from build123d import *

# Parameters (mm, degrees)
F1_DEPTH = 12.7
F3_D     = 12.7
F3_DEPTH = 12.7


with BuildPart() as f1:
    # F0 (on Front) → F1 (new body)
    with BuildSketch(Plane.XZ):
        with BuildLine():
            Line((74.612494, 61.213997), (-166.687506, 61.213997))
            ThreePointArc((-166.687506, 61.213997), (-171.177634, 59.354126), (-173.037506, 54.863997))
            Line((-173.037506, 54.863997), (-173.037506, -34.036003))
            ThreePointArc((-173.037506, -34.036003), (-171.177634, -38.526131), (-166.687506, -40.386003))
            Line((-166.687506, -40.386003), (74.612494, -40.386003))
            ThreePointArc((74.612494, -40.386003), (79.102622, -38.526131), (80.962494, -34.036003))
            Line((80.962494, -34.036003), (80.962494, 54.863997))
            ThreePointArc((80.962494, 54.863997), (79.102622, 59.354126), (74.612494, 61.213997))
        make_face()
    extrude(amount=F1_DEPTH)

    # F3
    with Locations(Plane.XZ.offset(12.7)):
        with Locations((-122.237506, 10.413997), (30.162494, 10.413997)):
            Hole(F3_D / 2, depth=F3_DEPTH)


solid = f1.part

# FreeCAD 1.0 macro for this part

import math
import FreeCAD as App
import Part
import Sketcher
Q = App.Units.Quantity

doc = App.newDocument("Part")
body = doc.addObject("PartDesign::Body", "Body")

sketch1 = body.newObject("Sketcher::SketchObject", "Sketch")
sketch1.AttachmentSupport = (doc.getObject("XZ_Plane"), [""])
sketch1.MapMode = "FlatFace"
sketch1.addGeometry([
    Part.LineSegment(App.Vector(75, 61, 0), App.Vector(-167, 61, 0)),
    Part.ArcOfCircle(Part.Circle(App.Vector(-167, 55, 0), App.Vector(0, 0, 1), 6), math.radians(90), math.radians(180)),
    Part.LineSegment(App.Vector(-173, 55, 0), App.Vector(-173, -34, 0)),
    Part.ArcOfCircle(Part.Circle(App.Vector(-167, -34, 0), App.Vector(0, 0, 1), 6), math.radians(-180), math.radians(-90)),
    Part.LineSegment(App.Vector(-167, -40, 0), App.Vector(75, -40, 0)),
    Part.ArcOfCircle(Part.Circle(App.Vector(75, -34, 0), App.Vector(0, 0, 1), 6), math.radians(-90), math.radians(0)),
    Part.LineSegment(App.Vector(81, -34, 0), App.Vector(81, 55, 0)),
    Part.ArcOfCircle(Part.Circle(App.Vector(75, 55, 0), App.Vector(0, 0, 1), 6), math.radians(0), math.radians(90)),
], False)
sketch1.addConstraint([
    Sketcher.Constraint("Tangent", 0, 2, 1, 1),
    Sketcher.Constraint("Tangent", 1, 2, 2, 1),
    Sketcher.Constraint("Tangent", 2, 2, 3, 1),
    Sketcher.Constraint("Tangent", 3, 2, 4, 1),
    Sketcher.Constraint("Tangent", 4, 2, 5, 1),
    Sketcher.Constraint("Tangent", 5, 2, 6, 1),
    Sketcher.Constraint("Tangent", 6, 2, 7, 1),
    Sketcher.Constraint("Tangent", 7, 2, 0, 1),
    Sketcher.Constraint("Horizontal", 0),
    Sketcher.Constraint("Vertical", 2),
    Sketcher.Constraint("Horizontal", 4),
    Sketcher.Constraint("Vertical", 6),
    Sketcher.Constraint("Equal", 1, 3),
    Sketcher.Constraint("Equal", 3, 5),
    Sketcher.Constraint("Equal", 5, 7),
    Sketcher.Constraint("Radius", 1, Q("0.2499999 in")),
    Sketcher.Constraint("DistanceX", 0, 2, 0, 1, Q("9.5 in")),
    Sketcher.Constraint("DistanceY", 2, 2, 2, 1, Q("3.5 in")),
    Sketcher.Constraint("DistanceY", -1, 1, 1, 3, Q("2.1599999 in")),
    Sketcher.Constraint("DistanceX", -1, 1, 7, 3, Q("2.9374998 in")),
])
pad1 = body.newObject("PartDesign::Pad", "Pad")
pad1.Profile = sketch1
pad1.Length = Q("0.5 in")

sketch2 = body.newObject("Sketcher::SketchObject", "Sketch001")
sketch2.AttachmentSupport = (doc.getObject("XZ_Plane"), [""])
sketch2.MapMode = "FlatFace"
sketch2.AttachmentOffset = App.Placement(App.Vector(0, 0, 0.5 * 25.4), App.Rotation())
sketch2.addGeometry([
    Part.Circle(App.Vector(-122, 10, 0), App.Vector(0, 0, 1), 6),
    Part.Circle(App.Vector(30, 10, 0), App.Vector(0, 0, 1), 6),
], False)
sketch2.addConstraint([
    Sketcher.Constraint("Equal", 0, 1),
    Sketcher.Constraint("Horizontal", 0, 3, 1, 3),
    Sketcher.Constraint("Diameter", 0, Q("0.5 in")),
    Sketcher.Constraint("DistanceX", 0, 3, 1, 3, Q("6 in")),
    Sketcher.Constraint("DistanceY", -1, 1, 0, 3, Q("0.4099999 in")),
    Sketcher.Constraint("DistanceX", 0, 3, -1, 1, Q("122.237506 mm")),
])
doc.recompute()
hole = body.newObject("PartDesign::Hole", "Hole")
hole.Profile = sketch2
hole.ThreadType = "None"
hole.Diameter = Q("0.5 in")
hole.DepthType = "Dimension"
hole.Depth = Q("0.5 in")
hole.DrillPoint = "Flat"

doc.recompute()
